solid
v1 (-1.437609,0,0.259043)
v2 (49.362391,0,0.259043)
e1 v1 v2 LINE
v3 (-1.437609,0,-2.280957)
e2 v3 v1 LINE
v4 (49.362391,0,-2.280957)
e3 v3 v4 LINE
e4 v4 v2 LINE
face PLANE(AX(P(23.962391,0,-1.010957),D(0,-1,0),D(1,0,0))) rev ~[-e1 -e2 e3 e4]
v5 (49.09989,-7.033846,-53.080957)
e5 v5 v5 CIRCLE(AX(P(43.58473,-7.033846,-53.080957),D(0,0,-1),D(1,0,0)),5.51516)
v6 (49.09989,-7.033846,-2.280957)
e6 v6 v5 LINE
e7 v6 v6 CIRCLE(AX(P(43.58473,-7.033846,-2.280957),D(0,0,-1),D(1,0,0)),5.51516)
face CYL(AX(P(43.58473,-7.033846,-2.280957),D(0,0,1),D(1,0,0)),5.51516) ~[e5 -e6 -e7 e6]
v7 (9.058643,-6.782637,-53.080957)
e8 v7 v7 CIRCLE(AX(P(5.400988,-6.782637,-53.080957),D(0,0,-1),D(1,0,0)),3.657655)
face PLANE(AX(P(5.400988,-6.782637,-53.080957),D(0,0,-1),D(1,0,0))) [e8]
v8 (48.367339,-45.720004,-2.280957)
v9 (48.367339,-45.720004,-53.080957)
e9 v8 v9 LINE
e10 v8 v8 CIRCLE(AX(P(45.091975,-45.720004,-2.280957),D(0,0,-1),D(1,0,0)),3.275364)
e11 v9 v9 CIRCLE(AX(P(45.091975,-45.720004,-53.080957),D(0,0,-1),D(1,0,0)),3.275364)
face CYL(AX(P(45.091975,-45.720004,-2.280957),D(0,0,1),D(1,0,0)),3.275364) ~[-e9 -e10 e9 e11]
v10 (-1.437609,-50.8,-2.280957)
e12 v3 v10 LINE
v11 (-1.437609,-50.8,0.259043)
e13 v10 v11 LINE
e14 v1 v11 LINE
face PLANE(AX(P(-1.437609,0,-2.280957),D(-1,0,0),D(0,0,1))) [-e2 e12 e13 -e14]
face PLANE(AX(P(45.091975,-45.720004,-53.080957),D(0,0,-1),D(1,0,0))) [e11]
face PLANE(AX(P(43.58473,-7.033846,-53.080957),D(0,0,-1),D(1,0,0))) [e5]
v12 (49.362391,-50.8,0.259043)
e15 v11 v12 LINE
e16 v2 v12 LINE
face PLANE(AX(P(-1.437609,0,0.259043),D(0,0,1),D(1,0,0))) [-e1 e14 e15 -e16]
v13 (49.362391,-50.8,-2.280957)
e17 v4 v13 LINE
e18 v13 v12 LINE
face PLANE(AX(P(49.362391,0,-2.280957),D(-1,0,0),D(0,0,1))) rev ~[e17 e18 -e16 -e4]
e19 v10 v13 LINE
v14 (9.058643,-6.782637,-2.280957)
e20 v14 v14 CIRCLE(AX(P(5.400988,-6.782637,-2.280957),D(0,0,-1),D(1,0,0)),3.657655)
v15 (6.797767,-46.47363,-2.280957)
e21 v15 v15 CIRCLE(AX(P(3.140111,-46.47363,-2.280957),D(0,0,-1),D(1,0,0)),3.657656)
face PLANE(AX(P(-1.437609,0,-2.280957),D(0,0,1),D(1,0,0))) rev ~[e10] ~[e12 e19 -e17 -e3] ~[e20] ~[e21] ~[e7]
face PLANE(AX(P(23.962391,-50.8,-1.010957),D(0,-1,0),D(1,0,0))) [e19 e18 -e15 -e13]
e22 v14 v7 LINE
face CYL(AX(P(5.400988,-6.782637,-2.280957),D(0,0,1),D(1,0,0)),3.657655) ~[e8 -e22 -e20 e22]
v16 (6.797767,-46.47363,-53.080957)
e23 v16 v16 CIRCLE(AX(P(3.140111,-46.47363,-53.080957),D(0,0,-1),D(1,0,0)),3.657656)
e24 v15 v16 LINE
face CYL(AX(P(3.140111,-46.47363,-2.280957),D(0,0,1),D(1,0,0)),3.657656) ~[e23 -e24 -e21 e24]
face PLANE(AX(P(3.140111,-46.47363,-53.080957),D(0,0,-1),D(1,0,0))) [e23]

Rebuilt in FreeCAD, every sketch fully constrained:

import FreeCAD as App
import Part
import Sketcher

V = App.Vector
Q = App.Units.Quantity

doc = App.newDocument("Part")
body = doc.addObject("PartDesign::Body", "Body")

# Sketch on XZ plane
sketch1 = body.newObject("Sketcher::SketchObject", "Sketch")
sketch1.AttachmentSupport = (doc.getObject("XZ_Plane"), [""])
sketch1.MapMode = "FlatFace"
sketch1.addGeometry([
    Part.LineSegment(V(-1.4, 0.3, 0), V(-1.4, -2.3, 0)),
    Part.LineSegment(V(-1.4, -2.3, 0), V(49.4, -2.3, 0)),
    Part.LineSegment(V(49.4, -2.3, 0), V(49.4, 0.3, 0)),
    Part.LineSegment(V(49.4, 0.3, 0), V(-1.4, 0.3, 0)),
], False)
sketch1.addConstraint([
    Sketcher.Constraint("Coincident", 0, 2, 1, 1),
    Sketcher.Constraint("Coincident", 1, 2, 2, 1),
    Sketcher.Constraint("Coincident", 2, 2, 3, 1),
    Sketcher.Constraint("Coincident", 3, 2, 0, 1),
    Sketcher.Constraint("Vertical", 0),
    Sketcher.Constraint("Horizontal", 1),
    Sketcher.Constraint("Vertical", 2),
    Sketcher.Constraint("Horizontal", 3),
    Sketcher.Constraint("DistanceX", 1, 1, 1, 2, Q("2 in")),
    Sketcher.Constraint("DistanceY", 0, 2, 0, 1, Q("0.1 in")),
    Sketcher.Constraint("DistanceX", 0, 2, -1, 1, Q("1.437609 mm")),
    Sketcher.Constraint("DistanceY", 0, 2, -1, 1, Q("2.280957 mm")),
])
pad1 = body.newObject("PartDesign::Pad", "Pad")
pad1.Profile = sketch1
pad1.Length = Q("2 in")

# Sketch on XY plane
sketch2 = body.newObject("Sketcher::SketchObject", "Sketch001")
sketch2.AttachmentSupport = (doc.getObject("XY_Plane"), [""])
sketch2.MapMode = "FlatFace"
sketch2.AttachmentOffset = App.Placement(V(0, 0, -2.280957), App.Rotation())
sketch2.addGeometry([
    Part.Circle(V(3.1, -46.5, 0), V(0, 0, 1), 3.7),
    Part.Circle(V(45.1, -45.7, 0), V(0, 0, 1), 3.3),
    Part.Circle(V(5.4, -6.8, 0), V(0, 0, 1), 3.7),
    Part.Circle(V(43.6, -7, 0), V(0, 0, 1), 5.5),
], False)
sketch2.addConstraint([
    Sketcher.Constraint("Equal", 0, 2),
    Sketcher.Constraint("DistanceY", 1, 3, -1, 1, Q("1.8000002 in")),
    Sketcher.Constraint("Diameter", 0, Q("7.315312 mm")),
    Sketcher.Constraint("Diameter", 1, Q("6.550728 mm")),
    Sketcher.Constraint("Diameter", 3, Q("11.03032 mm")),
    Sketcher.Constraint("DistanceX", -1, 1, 0, 3, Q("3.140111 mm")),
    Sketcher.Constraint("DistanceY", 0, 3, -1, 1, Q("46.47363 mm")),
    Sketcher.Constraint("DistanceX", -1, 1, 3, 3, Q("43.58473 mm")),
    Sketcher.Constraint("DistanceY", 3, 3, 2, 3, Q("0.251209 mm")),
    Sketcher.Constraint("DistanceY", 1, 3, 3, 3, Q("38.686158 mm")),
    Sketcher.Constraint("DistanceX", -1, 1, 1, 3, Q("45.091975 mm")),
    Sketcher.Constraint("DistanceX", -1, 1, 2, 3, Q("5.400988 mm")),
])
pad2 = body.newObject("PartDesign::Pad", "Pad001")
pad2.Profile = sketch2
pad2.Length = Q("2 in")
pad2.Reversed = True

doc.recompute()
